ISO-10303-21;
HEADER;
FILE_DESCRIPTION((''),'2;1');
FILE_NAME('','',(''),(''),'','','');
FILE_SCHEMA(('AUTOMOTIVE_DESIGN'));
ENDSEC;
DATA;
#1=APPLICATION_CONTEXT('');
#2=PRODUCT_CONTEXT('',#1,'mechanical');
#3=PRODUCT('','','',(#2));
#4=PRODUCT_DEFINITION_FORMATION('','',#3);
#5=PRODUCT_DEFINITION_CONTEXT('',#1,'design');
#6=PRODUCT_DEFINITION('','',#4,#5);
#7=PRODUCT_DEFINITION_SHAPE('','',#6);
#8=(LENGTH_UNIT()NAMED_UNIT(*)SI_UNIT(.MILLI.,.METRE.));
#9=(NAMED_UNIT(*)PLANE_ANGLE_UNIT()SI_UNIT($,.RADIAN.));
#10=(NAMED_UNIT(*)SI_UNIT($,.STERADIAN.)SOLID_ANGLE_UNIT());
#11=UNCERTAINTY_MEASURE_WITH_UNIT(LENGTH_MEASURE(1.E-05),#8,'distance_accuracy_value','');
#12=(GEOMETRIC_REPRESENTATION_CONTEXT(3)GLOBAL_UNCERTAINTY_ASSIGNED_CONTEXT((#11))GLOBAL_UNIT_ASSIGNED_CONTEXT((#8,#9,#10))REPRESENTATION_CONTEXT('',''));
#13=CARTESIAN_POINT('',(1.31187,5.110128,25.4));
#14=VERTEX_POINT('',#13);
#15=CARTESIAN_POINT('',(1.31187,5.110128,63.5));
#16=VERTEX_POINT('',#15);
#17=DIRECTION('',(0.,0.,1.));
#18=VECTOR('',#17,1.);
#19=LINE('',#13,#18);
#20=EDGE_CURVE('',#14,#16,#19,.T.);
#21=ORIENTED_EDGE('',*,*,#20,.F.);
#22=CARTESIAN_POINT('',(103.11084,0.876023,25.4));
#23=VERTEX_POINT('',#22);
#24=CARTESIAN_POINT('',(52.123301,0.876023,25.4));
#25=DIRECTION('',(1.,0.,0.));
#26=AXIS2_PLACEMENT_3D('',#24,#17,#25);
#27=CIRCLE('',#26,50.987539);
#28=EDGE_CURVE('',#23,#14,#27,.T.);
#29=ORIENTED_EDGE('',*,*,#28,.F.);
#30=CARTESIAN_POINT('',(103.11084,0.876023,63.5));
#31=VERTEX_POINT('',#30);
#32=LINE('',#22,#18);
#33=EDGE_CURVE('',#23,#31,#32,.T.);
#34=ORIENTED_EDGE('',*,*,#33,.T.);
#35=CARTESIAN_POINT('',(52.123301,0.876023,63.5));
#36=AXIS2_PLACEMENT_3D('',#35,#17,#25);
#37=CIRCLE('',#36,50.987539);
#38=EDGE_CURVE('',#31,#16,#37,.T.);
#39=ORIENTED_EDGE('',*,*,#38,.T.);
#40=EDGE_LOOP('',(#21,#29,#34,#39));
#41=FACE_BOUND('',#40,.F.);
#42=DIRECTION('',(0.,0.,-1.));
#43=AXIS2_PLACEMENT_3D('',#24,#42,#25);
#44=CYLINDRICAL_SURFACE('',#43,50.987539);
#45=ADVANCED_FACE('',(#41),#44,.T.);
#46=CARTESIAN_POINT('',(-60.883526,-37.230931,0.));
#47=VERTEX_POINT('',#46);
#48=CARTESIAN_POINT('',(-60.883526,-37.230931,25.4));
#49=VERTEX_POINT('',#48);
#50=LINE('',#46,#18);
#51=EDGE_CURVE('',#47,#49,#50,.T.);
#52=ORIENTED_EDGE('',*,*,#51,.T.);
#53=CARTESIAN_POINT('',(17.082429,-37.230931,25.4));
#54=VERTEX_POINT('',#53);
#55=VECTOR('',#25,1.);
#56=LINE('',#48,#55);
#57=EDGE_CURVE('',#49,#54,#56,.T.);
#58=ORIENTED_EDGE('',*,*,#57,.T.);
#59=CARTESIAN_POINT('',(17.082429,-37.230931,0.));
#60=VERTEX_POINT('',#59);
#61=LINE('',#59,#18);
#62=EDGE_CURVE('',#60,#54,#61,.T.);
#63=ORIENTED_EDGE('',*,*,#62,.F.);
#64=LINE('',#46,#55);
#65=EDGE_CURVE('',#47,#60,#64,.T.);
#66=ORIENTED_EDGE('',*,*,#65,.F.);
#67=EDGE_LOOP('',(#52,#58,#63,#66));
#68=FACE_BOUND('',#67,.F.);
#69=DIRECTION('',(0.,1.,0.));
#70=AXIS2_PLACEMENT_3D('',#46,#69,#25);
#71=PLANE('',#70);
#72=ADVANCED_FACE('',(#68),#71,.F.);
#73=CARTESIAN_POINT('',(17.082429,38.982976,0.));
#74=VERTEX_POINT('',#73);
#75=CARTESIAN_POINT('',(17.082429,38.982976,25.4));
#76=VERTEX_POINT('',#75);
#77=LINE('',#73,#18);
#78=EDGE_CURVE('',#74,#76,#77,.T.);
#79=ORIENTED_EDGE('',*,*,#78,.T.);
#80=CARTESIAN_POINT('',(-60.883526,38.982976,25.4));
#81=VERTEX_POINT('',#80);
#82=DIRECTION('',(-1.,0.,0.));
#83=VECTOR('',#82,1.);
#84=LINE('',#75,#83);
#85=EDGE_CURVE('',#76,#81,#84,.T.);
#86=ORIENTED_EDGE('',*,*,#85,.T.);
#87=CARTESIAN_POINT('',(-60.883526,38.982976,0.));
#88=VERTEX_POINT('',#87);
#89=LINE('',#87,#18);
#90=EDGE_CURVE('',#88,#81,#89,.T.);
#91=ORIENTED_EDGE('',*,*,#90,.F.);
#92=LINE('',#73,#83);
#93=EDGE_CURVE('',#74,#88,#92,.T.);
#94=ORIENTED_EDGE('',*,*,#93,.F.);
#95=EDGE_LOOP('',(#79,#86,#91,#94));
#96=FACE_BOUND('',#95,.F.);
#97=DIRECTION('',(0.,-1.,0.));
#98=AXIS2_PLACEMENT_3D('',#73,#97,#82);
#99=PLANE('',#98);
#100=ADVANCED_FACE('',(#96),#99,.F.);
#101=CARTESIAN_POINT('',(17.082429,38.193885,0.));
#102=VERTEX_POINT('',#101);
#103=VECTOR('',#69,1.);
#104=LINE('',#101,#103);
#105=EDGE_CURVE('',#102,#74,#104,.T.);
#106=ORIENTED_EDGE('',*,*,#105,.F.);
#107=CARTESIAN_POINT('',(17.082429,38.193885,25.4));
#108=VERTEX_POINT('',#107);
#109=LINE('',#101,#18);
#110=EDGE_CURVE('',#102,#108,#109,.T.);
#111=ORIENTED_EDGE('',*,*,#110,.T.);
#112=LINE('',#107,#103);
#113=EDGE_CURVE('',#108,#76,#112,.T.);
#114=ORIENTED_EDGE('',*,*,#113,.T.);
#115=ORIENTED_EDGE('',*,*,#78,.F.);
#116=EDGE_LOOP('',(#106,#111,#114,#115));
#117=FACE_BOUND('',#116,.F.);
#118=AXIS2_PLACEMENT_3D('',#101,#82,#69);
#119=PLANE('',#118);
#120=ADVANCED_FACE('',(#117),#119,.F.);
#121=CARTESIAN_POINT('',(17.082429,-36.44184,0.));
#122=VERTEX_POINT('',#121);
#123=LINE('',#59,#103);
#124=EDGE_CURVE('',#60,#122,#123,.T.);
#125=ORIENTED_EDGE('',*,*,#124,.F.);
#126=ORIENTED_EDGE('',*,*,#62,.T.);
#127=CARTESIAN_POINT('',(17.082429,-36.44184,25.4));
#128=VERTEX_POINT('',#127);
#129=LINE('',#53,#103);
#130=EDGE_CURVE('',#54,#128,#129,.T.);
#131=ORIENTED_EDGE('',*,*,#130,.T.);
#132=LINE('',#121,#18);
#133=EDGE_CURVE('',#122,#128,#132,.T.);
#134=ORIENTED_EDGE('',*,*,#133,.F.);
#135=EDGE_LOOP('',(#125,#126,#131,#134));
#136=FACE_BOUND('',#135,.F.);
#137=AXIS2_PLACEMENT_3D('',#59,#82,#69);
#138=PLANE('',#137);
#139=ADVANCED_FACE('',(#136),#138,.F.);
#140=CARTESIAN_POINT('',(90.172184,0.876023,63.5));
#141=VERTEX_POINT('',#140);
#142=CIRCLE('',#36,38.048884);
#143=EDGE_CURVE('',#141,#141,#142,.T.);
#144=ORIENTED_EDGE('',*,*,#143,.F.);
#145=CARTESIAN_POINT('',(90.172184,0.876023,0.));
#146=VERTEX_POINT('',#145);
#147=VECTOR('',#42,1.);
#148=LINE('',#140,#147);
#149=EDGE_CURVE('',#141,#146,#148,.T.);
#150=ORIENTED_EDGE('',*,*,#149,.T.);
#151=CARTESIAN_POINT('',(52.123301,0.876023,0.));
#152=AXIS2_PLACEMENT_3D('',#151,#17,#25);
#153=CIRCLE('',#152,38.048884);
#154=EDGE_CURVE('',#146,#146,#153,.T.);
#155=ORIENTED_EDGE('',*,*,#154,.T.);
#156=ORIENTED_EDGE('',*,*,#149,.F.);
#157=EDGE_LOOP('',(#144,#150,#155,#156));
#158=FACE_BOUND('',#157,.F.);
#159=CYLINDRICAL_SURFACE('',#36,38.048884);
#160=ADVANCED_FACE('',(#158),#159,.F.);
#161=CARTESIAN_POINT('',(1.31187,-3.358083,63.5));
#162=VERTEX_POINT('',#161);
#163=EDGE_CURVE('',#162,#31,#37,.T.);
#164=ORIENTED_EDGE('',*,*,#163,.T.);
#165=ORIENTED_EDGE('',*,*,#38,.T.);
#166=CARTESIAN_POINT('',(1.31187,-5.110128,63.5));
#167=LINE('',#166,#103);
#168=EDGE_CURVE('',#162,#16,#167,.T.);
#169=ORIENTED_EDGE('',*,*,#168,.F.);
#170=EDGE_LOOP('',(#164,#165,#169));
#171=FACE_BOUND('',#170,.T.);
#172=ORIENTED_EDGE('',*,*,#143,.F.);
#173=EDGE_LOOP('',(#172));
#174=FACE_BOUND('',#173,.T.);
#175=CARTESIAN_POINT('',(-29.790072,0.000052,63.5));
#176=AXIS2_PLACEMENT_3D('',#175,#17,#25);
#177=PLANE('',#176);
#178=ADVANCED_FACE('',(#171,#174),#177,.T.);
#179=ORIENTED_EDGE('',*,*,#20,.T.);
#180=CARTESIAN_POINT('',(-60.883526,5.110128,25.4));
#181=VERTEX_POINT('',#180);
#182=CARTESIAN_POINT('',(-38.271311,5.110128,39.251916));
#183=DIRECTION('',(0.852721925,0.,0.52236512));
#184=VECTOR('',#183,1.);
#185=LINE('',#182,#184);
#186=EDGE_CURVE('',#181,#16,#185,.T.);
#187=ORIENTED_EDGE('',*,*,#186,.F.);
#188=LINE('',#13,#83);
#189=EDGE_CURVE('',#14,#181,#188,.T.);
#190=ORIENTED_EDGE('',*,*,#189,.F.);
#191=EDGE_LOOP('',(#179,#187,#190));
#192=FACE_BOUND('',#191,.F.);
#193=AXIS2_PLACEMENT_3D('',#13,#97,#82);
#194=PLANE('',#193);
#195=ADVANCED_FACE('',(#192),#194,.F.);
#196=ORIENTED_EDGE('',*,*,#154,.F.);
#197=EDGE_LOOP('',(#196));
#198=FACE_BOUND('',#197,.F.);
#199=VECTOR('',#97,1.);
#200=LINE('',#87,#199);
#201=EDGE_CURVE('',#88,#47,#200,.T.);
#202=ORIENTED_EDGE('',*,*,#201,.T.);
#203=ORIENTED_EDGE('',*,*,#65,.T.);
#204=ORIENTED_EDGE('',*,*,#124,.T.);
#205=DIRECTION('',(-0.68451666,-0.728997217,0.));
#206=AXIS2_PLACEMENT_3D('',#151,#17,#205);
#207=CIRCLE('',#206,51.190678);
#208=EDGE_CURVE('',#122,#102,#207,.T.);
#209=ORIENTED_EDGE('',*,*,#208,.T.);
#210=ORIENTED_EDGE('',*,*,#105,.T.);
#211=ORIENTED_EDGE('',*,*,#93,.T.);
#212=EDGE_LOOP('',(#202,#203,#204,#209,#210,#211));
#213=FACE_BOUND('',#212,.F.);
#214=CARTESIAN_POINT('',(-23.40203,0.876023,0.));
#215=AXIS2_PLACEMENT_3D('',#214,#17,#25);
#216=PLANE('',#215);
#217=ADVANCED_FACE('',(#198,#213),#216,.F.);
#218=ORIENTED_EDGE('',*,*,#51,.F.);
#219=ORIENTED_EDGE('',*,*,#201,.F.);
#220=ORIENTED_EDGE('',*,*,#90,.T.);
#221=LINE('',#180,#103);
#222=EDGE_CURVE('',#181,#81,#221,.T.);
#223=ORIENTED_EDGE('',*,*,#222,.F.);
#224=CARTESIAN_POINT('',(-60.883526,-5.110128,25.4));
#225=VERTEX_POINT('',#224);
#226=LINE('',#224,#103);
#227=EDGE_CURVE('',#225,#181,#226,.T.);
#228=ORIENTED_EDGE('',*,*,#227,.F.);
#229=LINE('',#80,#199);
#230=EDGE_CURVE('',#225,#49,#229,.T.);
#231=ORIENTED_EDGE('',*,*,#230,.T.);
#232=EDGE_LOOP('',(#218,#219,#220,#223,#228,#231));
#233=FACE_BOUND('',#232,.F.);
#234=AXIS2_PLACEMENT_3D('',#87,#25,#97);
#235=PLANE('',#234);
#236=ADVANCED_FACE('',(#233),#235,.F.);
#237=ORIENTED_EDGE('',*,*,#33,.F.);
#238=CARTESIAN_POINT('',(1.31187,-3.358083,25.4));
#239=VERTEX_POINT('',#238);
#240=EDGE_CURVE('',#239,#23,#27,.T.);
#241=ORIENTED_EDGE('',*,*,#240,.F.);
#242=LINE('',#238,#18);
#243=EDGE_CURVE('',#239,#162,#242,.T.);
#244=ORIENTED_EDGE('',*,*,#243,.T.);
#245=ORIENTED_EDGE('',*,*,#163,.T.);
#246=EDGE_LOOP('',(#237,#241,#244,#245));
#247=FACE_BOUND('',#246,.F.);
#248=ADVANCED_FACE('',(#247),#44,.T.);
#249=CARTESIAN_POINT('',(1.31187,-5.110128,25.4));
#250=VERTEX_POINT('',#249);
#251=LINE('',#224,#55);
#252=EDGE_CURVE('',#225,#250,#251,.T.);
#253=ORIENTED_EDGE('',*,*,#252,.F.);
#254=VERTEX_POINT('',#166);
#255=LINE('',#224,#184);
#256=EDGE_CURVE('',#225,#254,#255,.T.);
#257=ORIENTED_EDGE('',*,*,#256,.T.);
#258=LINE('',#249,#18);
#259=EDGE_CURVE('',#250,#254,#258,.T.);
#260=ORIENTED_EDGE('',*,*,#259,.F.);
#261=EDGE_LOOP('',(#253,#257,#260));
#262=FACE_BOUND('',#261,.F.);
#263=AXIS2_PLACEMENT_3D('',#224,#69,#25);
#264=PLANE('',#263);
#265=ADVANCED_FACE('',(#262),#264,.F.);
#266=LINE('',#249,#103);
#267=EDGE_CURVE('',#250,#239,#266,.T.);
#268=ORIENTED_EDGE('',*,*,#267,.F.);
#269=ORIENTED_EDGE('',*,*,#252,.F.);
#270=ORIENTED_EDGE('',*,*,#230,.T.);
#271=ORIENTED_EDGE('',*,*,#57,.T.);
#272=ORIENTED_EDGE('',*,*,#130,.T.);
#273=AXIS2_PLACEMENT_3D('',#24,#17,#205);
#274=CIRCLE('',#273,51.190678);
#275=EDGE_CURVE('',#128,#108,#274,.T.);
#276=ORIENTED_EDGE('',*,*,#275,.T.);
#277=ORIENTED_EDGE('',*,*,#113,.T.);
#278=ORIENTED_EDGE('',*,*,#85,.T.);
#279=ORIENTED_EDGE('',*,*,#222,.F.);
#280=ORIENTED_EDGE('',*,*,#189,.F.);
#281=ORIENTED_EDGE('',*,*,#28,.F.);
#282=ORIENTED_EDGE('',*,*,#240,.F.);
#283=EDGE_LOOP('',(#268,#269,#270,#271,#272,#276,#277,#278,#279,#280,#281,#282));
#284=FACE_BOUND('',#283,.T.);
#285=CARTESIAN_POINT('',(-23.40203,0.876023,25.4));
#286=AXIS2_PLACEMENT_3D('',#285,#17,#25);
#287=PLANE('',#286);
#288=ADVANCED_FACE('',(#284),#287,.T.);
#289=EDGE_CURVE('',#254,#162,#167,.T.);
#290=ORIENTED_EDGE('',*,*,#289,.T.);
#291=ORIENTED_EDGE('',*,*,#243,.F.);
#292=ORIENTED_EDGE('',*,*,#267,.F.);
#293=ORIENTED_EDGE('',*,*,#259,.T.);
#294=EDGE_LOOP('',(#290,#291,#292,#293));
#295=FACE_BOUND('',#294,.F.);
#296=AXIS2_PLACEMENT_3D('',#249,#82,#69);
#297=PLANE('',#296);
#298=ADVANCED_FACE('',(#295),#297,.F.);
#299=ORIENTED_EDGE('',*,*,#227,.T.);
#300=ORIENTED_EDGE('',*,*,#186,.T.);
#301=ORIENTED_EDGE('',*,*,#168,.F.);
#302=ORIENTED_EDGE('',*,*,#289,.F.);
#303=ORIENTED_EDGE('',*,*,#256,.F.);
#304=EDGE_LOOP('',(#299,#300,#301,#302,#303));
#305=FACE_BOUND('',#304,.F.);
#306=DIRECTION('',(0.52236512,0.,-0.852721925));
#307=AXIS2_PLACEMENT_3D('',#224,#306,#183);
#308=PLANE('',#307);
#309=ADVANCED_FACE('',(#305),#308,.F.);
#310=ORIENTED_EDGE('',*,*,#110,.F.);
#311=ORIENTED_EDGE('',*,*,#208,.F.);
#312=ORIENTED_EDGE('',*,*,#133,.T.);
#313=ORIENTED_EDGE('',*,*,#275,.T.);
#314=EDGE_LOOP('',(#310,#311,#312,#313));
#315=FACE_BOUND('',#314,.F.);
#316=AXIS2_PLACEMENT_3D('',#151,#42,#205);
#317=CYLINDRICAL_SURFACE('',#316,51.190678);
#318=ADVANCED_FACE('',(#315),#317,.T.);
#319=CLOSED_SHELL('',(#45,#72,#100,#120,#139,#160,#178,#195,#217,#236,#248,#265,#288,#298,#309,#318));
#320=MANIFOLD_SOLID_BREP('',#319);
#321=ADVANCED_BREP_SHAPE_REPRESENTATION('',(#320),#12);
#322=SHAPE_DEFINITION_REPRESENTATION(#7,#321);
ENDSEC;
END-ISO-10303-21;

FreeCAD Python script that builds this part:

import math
import FreeCAD as App
import Part
import Sketcher
Q = App.Units.Quantity


def add_polygon(sketch, points):
    """Adds a closed chain of lines whose ends are joined by coincident constraints."""
    first, n = sketch.GeometryCount, len(points)
    for a, b in zip(points, points[1:] + points[:1]):
        sketch.addGeometry(Part.LineSegment(App.Vector(*a, 0), App.Vector(*b, 0)), False)
    for i in range(n):
        sketch.addConstraint(Sketcher.Constraint("Coincident", first + i, 2, first + (i + 1) % n, 1))

doc = App.newDocument("Part")
body = doc.addObject("PartDesign::Body", "Body")

sketch1 = body.newObject("Sketcher::SketchObject", "Sketch")
sketch1.AttachmentSupport = (doc.getObject("XY_Plane"), [""])
sketch1.MapMode = "FlatFace"
sketch1.addGeometry(Part.LineSegment(App.Vector(-60.883526, 38.982976, 0), App.Vector(-60.883526, -37.230931, 0)), False)
sketch1.addGeometry(Part.LineSegment(App.Vector(-60.883526, -37.230931, 0), App.Vector(17.082429, -37.230931, 0)), False)
sketch1.addGeometry(Part.LineSegment(App.Vector(17.082429, -37.230931, 0), App.Vector(17.082429, -36.44184, 0)), False)
sketch1.addGeometry(Part.ArcOfCircle(Part.Circle(App.Vector(52.123301, 0.876023, 0), App.Vector(0, 0, 1), 51.190678), math.radians(-133.197607), math.radians(133.197607)), False)
sketch1.addGeometry(Part.LineSegment(App.Vector(17.082429, 38.193885, 0), App.Vector(17.082429, 38.982976, 0)), False)
sketch1.addGeometry(Part.LineSegment(App.Vector(17.082429, 38.982976, 0), App.Vector(-60.883526, 38.982976, 0)), False)
sketch1.addConstraint(Sketcher.Constraint("Coincident", 0, 2, 1, 1))
sketch1.addConstraint(Sketcher.Constraint("Coincident", 1, 2, 2, 1))
sketch1.addConstraint(Sketcher.Constraint("Coincident", 2, 2, 3, 1))
sketch1.addConstraint(Sketcher.Constraint("Coincident", 3, 2, 4, 1))
sketch1.addConstraint(Sketcher.Constraint("Coincident", 4, 2, 5, 1))
sketch1.addConstraint(Sketcher.Constraint("Coincident", 5, 2, 0, 1))
sketch1.addConstraint(Sketcher.Constraint("Vertical", 0))
sketch1.addConstraint(Sketcher.Constraint("Horizontal", 1))
sketch1.addConstraint(Sketcher.Constraint("Vertical", 2))
sketch1.addConstraint(Sketcher.Constraint("Vertical", 4))
sketch1.addConstraint(Sketcher.Constraint("Horizontal", 5))
sketch1.addConstraint(Sketcher.Constraint("Vertical", 2, 2, 3, 2))
sketch1.addConstraint(Sketcher.Constraint("Equal", 2, 4))
sketch1.addConstraint(Sketcher.Constraint("Radius", 3, 51.190678))
sketch1.addConstraint(Sketcher.Constraint("DistanceY", 2, 1, 2, 2, 0.789092))
sketch1.addConstraint(Sketcher.Constraint("DistanceX", -1, 1, 3, 3, 52.123301))
sketch1.addConstraint(Sketcher.Constraint("DistanceX", 1, 1, 1, 2, 77.965954))
sketch1.addConstraint(Sketcher.Constraint("DistanceY", 0, 2, 0, 1, 76.213907))
sketch1.addConstraint(Sketcher.Constraint("DistanceY", 0, 2, -1, 1, 37.230931))
pad1 = body.newObject("PartDesign::Pad", "Pad")
pad1.Profile = sketch1
pad1.Length = Q("1 in")

sketch2 = body.newObject("Sketcher::SketchObject", "Sketch001")
sketch2.AttachmentSupport = (doc.getObject("XY_Plane"), [""])
sketch2.MapMode = "FlatFace"
sketch2.AttachmentOffset = App.Placement(App.Vector(0, 0, 1 * 25.4), App.Rotation())
sketch2.addGeometry(Part.Circle(App.Vector(52.123301, 0.876023, 0), App.Vector(0, 0, 1), 50.987539), False)
sketch2.addConstraint(Sketcher.Constraint("Diameter", 0, 101.975078))
sketch2.addConstraint(Sketcher.Constraint("DistanceX", -1, 1, 0, 3, 52.123301))
sketch2.addConstraint(Sketcher.Constraint("DistanceY", -1, 1, 0, 3, 0.876023))
pad2 = body.newObject("PartDesign::Pad", "Pad001")
pad2.Profile = sketch2
pad2.Length = Q("1.5 in")

sketch3 = body.newObject("Sketcher::SketchObject", "Sketch002")
sketch3.AttachmentSupport = (doc.getObject("XY_Plane"), [""])
sketch3.MapMode = "FlatFace"
sketch3.AttachmentOffset = App.Placement(App.Vector(0, 0, 1 * 25.4), App.Rotation())
sketch3.addGeometry(Part.LineSegment(App.Vector(1.31187, 5.110128, 0), App.Vector(-60.883526, 5.110128, 0)), False)
sketch3.addGeometry(Part.LineSegment(App.Vector(-60.883526, 5.110128, 0), App.Vector(-60.883526, -5.110128, 0)), False)
sketch3.addGeometry(Part.LineSegment(App.Vector(-60.883526, -5.110128, 0), App.Vector(1.31187, -5.110128, 0)), False)
sketch3.addGeometry(Part.LineSegment(App.Vector(1.31187, -5.110128, 0), App.Vector(1.31187, -3.358083, 0)), False)
sketch3.addGeometry(Part.ArcOfCircle(Part.Circle(App.Vector(52.123301, 0.876023, 0), App.Vector(0, 0, 1), 50.987539), math.radians(175.236561), math.radians(184.763439)), False)
sketch3.addConstraint(Sketcher.Constraint("Coincident", 0, 2, 1, 1))
sketch3.addConstraint(Sketcher.Constraint("Coincident", 1, 2, 2, 1))
sketch3.addConstraint(Sketcher.Constraint("Coincident", 2, 2, 3, 1))
sketch3.addConstraint(Sketcher.Constraint("Coincident", 3, 2, 4, 2))
sketch3.addConstraint(Sketcher.Constraint("Coincident", 4, 1, 0, 1))
sketch3.addConstraint(Sketcher.Constraint("Horizontal", 0))
sketch3.addConstraint(Sketcher.Constraint("Vertical", 1))
sketch3.addConstraint(Sketcher.Constraint("Horizontal", 2))
sketch3.addConstraint(Sketcher.Constraint("Vertical", 3))
sketch3.addConstraint(Sketcher.Constraint("Symmetric", 2, 2, 4, 1, -1))
sketch3.addConstraint(Sketcher.Constraint("Radius", 4, 50.987539))
sketch3.addConstraint(Sketcher.Constraint("DistanceX", -1, 1, 4, 3, 52.123301))
sketch3.addConstraint(Sketcher.Constraint("DistanceX", 0, 2, 0, 1, 62.195396))
sketch3.addConstraint(Sketcher.Constraint("DistanceY", 1, 2, 1, 1, 10.220256))
sketch3.addConstraint(Sketcher.Constraint("DistanceY", 3, 1, 3, 2, 1.752045))
pad3 = body.newObject("PartDesign::Pad", "Pad002")
pad3.Profile = sketch3
pad3.Length = Q("1.5 in")

sketch4 = body.newObject("Sketcher::SketchObject", "Sketch003")
sketch4.AttachmentSupport = (doc.getObject("XZ_Plane"), [""])
sketch4.MapMode = "FlatFace"
sketch4.AttachmentOffset = App.Placement(App.Vector(0, 0, 5.110128), App.Rotation())
add_polygon(sketch4, [(-60.883526, 63.5), (-60.883526, 25.4), (1.31187, 63.5)])
sketch4.addConstraint(Sketcher.Constraint("Vertical", 0))
sketch4.addConstraint(Sketcher.Constraint("Horizontal", 2))
sketch4.addConstraint(Sketcher.Constraint("DistanceY", 0, 2, 0, 1, Q("1.5 in")))
sketch4.addConstraint(Sketcher.Constraint("DistanceY", -1, 1, 0, 2, Q("1 in")))
sketch4.addConstraint(Sketcher.Constraint("Distance", 1, 72.937489))
sketch4.addConstraint(Sketcher.Constraint("DistanceX", -1, 1, 1, 2, 1.31187))
pocket1 = body.newObject("PartDesign::Pocket", "Pocket")
pocket1.Profile = sketch4
pocket1.Length = Q("1 in")

sketch5 = body.newObject("Sketcher::SketchObject", "Sketch004")
sketch5.AttachmentSupport = (doc.getObject("XY_Plane"), [""])
sketch5.MapMode = "FlatFace"
sketch5.AttachmentOffset = App.Placement(App.Vector(0, 0, 2.5 * 25.4), App.Rotation())
sketch5.addGeometry(Part.Circle(App.Vector(52.123301, 0.876023, 0), App.Vector(0, 0, 1), 38.048884), False)
sketch5.addConstraint(Sketcher.Constraint("Diameter", 0, 76.097767))
sketch5.addConstraint(Sketcher.Constraint("DistanceX", -1, 1, 0, 3, 52.123301))
sketch5.addConstraint(Sketcher.Constraint("DistanceY", -1, 1, 0, 3, 0.876023))
pocket2 = body.newObject("PartDesign::Pocket", "Pocket001")
pocket2.Profile = sketch5
pocket2.Length = Q("2.5 in")

doc.recompute()
